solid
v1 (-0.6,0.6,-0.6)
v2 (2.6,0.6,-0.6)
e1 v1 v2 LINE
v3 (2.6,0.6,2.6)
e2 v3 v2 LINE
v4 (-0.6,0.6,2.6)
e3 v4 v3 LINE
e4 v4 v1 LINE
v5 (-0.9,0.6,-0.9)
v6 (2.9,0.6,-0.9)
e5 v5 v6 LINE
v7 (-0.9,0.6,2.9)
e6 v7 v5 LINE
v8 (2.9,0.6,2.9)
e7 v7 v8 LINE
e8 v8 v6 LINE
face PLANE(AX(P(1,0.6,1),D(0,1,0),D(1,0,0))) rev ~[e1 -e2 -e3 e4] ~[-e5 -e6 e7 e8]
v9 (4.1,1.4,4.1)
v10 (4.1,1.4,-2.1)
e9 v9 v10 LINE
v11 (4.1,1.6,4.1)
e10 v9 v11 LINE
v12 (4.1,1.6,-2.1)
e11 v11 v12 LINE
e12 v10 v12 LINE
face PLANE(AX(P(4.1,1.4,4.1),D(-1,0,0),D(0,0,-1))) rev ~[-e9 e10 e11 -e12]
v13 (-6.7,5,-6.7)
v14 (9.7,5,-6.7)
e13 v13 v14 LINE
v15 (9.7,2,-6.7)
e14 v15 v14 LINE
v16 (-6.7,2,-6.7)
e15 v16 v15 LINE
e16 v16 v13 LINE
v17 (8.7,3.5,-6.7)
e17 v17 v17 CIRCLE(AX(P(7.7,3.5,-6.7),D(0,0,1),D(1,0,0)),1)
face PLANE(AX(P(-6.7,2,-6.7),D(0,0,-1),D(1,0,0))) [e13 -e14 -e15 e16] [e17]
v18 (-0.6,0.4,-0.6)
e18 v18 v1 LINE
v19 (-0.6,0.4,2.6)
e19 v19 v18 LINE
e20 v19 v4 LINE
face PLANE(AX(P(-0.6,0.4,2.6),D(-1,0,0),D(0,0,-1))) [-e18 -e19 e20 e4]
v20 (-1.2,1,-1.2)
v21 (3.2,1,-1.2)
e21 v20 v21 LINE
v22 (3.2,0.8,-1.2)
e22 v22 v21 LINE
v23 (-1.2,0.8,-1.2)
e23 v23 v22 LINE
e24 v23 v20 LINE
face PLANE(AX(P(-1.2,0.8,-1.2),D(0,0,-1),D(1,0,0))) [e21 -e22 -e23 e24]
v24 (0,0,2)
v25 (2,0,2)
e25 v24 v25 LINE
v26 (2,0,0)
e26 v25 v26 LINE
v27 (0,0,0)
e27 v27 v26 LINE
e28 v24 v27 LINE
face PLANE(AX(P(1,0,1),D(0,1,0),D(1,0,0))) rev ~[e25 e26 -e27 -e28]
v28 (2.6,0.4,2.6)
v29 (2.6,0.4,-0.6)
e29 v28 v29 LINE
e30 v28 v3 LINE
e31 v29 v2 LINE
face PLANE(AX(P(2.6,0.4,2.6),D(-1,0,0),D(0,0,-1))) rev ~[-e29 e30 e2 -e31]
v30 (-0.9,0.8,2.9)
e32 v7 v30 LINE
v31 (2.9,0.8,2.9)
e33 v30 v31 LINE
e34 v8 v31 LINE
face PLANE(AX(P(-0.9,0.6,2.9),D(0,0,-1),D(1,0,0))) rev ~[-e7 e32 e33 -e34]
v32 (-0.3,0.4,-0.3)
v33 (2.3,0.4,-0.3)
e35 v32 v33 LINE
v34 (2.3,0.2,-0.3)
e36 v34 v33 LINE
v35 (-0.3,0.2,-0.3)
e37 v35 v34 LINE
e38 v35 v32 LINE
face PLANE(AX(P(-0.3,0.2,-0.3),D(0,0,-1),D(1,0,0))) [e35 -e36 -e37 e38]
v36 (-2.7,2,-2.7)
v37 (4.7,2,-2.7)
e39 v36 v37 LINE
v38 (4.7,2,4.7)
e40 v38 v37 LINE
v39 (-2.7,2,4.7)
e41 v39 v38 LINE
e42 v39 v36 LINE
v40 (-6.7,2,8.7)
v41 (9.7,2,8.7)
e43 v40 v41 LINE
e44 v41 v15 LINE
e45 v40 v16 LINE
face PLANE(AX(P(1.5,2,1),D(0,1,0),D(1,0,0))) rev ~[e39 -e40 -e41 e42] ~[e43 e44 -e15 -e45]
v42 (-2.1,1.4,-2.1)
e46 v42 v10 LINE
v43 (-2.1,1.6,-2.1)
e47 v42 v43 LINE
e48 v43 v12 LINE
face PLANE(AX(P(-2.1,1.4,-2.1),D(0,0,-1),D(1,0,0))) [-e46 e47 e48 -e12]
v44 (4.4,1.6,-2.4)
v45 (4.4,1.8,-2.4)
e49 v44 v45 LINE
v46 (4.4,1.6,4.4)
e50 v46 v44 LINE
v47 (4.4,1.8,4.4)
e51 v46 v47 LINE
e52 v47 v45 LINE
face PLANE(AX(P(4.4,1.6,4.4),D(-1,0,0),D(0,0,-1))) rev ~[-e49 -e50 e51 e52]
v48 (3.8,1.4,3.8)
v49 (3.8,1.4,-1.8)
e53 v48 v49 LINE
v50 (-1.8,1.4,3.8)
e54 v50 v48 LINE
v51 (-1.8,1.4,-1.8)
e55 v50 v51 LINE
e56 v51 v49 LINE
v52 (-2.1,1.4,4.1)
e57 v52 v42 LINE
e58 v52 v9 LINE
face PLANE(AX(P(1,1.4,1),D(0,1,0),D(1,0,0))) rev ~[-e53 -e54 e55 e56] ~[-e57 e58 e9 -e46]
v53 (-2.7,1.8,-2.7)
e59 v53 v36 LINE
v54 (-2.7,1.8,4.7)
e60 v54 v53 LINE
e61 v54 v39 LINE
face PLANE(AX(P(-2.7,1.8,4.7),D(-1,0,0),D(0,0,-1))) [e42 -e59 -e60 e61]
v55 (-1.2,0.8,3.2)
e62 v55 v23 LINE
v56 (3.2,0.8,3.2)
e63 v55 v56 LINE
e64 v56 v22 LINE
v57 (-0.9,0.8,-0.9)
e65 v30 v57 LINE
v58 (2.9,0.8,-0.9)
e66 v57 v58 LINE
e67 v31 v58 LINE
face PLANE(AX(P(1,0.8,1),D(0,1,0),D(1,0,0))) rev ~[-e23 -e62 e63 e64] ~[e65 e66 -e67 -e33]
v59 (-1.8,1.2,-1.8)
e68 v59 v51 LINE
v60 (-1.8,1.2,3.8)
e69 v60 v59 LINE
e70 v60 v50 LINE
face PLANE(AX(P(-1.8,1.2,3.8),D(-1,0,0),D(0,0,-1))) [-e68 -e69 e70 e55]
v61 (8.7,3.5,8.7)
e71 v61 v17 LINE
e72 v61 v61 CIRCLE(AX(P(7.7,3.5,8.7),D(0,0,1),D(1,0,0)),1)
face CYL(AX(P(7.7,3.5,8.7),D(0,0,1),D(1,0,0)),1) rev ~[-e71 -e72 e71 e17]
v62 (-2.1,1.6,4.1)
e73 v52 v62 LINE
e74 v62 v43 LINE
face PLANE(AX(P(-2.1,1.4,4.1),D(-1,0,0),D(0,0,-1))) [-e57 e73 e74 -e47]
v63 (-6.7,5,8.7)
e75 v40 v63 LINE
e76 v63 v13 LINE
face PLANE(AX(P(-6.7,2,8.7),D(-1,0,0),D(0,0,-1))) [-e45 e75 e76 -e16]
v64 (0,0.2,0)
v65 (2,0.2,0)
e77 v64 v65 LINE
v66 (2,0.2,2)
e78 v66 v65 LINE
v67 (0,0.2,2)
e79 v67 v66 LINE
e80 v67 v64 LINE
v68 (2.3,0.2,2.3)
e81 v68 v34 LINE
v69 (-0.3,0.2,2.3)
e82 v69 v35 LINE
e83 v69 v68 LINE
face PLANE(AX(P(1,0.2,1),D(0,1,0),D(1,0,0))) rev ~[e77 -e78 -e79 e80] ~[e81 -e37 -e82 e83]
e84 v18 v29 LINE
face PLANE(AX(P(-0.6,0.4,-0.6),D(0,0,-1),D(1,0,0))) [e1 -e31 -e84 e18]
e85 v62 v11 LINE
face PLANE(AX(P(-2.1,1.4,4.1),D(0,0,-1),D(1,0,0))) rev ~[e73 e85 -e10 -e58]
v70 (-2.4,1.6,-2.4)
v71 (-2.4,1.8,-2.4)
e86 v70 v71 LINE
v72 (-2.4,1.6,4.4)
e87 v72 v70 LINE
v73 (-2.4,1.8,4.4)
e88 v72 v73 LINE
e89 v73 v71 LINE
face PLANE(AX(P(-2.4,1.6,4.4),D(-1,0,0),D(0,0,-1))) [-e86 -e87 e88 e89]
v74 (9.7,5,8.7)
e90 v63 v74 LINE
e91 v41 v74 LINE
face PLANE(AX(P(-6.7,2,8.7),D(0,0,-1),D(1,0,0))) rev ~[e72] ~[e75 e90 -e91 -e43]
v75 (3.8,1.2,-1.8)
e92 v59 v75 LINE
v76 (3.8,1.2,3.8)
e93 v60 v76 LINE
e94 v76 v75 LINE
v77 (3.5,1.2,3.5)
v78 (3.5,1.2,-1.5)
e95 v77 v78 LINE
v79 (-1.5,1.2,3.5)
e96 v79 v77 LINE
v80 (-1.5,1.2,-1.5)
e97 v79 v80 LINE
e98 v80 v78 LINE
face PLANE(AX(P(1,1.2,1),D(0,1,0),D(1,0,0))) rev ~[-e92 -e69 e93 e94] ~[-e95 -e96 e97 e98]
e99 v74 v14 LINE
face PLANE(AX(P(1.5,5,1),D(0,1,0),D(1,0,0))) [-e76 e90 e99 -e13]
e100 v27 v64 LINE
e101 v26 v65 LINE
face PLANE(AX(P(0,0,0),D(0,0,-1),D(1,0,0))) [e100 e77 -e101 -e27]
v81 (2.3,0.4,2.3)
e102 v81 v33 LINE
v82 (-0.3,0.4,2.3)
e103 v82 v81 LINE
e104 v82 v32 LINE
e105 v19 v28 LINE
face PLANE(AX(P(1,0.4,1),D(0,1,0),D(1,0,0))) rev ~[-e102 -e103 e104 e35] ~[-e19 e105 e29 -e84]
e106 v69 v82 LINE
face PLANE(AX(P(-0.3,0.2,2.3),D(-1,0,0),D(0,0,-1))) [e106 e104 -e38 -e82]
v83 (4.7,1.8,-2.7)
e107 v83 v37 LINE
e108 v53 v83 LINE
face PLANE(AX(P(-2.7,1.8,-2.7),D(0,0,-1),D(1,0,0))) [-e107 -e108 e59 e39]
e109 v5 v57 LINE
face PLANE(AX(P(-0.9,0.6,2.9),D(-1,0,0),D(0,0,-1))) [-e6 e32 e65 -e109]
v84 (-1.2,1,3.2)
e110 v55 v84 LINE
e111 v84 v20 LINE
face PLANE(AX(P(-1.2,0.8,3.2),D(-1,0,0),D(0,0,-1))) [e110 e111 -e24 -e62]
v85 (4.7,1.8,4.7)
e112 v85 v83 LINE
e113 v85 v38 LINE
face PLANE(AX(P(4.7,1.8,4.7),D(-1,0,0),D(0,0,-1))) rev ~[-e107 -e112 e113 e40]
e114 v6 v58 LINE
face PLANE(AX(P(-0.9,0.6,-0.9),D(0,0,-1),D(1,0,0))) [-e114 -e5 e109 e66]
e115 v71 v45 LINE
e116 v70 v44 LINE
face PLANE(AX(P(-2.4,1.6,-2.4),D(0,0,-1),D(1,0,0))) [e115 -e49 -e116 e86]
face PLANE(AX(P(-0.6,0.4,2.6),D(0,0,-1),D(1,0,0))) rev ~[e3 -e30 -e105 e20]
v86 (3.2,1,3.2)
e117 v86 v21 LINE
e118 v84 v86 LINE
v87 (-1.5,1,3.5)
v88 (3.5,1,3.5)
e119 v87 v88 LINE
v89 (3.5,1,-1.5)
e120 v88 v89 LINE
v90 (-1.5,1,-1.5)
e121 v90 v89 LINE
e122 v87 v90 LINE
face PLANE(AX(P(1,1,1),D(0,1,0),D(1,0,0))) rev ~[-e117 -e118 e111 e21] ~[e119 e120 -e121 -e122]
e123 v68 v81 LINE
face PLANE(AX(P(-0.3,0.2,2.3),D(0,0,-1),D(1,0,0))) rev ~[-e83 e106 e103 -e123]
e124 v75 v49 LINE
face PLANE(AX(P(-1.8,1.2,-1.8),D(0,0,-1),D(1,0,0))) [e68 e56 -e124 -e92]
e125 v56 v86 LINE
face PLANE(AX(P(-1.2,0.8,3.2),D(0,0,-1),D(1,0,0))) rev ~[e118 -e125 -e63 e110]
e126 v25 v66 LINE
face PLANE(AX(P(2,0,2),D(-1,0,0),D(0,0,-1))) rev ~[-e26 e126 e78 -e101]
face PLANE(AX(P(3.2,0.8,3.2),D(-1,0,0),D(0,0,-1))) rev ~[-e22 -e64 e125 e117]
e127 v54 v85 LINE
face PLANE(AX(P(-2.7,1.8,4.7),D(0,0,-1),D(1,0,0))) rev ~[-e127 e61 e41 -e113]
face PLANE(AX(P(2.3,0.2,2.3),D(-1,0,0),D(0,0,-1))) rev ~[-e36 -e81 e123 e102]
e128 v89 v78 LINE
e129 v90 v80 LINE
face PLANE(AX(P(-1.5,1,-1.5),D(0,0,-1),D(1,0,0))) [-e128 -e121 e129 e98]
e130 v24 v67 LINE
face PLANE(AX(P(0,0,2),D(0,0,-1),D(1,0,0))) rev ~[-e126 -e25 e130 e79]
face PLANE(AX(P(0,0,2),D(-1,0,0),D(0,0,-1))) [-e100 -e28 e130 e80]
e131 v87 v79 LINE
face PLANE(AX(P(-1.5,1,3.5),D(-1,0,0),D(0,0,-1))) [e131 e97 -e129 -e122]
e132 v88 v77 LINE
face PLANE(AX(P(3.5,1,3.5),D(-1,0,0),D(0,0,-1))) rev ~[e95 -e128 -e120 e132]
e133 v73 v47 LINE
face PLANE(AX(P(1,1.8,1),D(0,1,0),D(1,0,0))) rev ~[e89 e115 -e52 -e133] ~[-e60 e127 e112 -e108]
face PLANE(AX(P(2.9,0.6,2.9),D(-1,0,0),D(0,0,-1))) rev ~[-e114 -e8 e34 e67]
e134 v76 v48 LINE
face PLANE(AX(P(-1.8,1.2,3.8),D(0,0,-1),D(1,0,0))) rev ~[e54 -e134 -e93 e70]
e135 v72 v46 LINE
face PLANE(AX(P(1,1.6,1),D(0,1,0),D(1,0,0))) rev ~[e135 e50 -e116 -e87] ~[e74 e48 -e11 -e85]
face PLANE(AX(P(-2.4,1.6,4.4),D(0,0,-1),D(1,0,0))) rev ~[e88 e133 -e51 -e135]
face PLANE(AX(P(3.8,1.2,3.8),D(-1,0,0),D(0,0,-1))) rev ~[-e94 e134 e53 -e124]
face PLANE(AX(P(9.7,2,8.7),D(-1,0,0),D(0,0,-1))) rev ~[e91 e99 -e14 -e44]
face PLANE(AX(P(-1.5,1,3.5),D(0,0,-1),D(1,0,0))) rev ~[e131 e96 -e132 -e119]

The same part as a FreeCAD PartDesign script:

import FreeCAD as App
import Part
import Sketcher
Q = App.Units.Quantity


def add_polygon(sketch, points):
    """Adds a closed chain of lines whose ends are joined by coincident constraints."""
    first, n = sketch.GeometryCount, len(points)
    for a, b in zip(points, points[1:] + points[:1]):
        sketch.addGeometry(Part.LineSegment(App.Vector(*a, 0), App.Vector(*b, 0)), False)
    for i in range(n):
        sketch.addConstraint(Sketcher.Constraint("Coincident", first + i, 2, first + (i + 1) % n, 1))

doc = App.newDocument("Part")
body = doc.addObject("PartDesign::Body", "Body")

# Sketch on XZ plane
sketch1 = body.newObject("Sketcher::SketchObject", "Sketch")
sketch1.AttachmentSupport = (doc.getObject("XZ_Plane"), [""])
sketch1.MapMode = "FlatFace"
add_polygon(sketch1, [(0, 0), (0, 2), (2, 2), (2, 0)])  # lines 0-3
sketch1.addConstraint([
    Sketcher.Constraint("Vertical", 0),
    Sketcher.Constraint("Horizontal", 1),
    Sketcher.Constraint("Vertical", 2),
    Sketcher.Constraint("Horizontal", 3),
    Sketcher.Constraint("Coincident", 3, 2, -1, 1),
    Sketcher.Constraint("Equal", 3, 0),
    Sketcher.Constraint("DistanceX", 1, 1, 1, 2, Q("2 mm")),
])
pad1 = body.newObject("PartDesign::Pad", "Pad")
pad1.Profile = sketch1
pad1.Length = 0.2
pad1.Reversed = True

# Sketch on XZ plane
sketch2 = body.newObject("Sketcher::SketchObject", "Sketch001")
sketch2.AttachmentSupport = (doc.getObject("XZ_Plane"), [""])
sketch2.MapMode = "FlatFace"
sketch2.AttachmentOffset = App.Placement(App.Vector(0, 0, -0.2), App.Rotation())
add_polygon(sketch2, [(-0.3, -0.3), (-0.3, 2.3), (2.3, 2.3), (2.3, -0.3)])  # lines 0-3
sketch2.addConstraint([
    Sketcher.Constraint("Vertical", 0),
    Sketcher.Constraint("Horizontal", 1),
    Sketcher.Constraint("Vertical", 2),
    Sketcher.Constraint("Horizontal", 3),
    Sketcher.Constraint("Equal", 3, 0),
    Sketcher.Constraint("DistanceX", 1, 1, 1, 2, Q("2.6 mm")),
    Sketcher.Constraint("DistanceX", 0, 2, -1, 1, Q("0.3 mm")),
    Sketcher.Constraint("DistanceY", -1, 1, 0, 2, Q("2.3 mm")),
])
pad2 = body.newObject("PartDesign::Pad", "Pad001")
pad2.Profile = sketch2
pad2.Length = 0.2
pad2.Reversed = True

# Sketch on XZ plane
sketch3 = body.newObject("Sketcher::SketchObject", "Sketch002")
sketch3.AttachmentSupport = (doc.getObject("XZ_Plane"), [""])
sketch3.MapMode = "FlatFace"
sketch3.AttachmentOffset = App.Placement(App.Vector(0, 0, -0.4), App.Rotation())
add_polygon(sketch3, [(-0.6, -0.6), (-0.6, 2.6), (2.6, 2.6), (2.6, -0.6)])  # lines 0-3
sketch3.addConstraint([
    Sketcher.Constraint("Vertical", 0),
    Sketcher.Constraint("Horizontal", 1),
    Sketcher.Constraint("Vertical", 2),
    Sketcher.Constraint("Horizontal", 3),
    Sketcher.Constraint("Equal", 3, 0),
    Sketcher.Constraint("DistanceX", 1, 1, 1, 2, Q("3.2 mm")),
    Sketcher.Constraint("DistanceX", 0, 2, -1, 1, Q("0.6 mm")),
    Sketcher.Constraint("DistanceY", -1, 1, 0, 2, Q("2.6 mm")),
])
pad3 = body.newObject("PartDesign::Pad", "Pad002")
pad3.Profile = sketch3
pad3.Length = 0.2
pad3.Reversed = True

# Sketch on XZ plane
sketch4 = body.newObject("Sketcher::SketchObject", "Sketch003")
sketch4.AttachmentSupport = (doc.getObject("XZ_Plane"), [""])
sketch4.MapMode = "FlatFace"
sketch4.AttachmentOffset = App.Placement(App.Vector(0, 0, -0.6), App.Rotation())
add_polygon(sketch4, [(-0.9, -0.9), (-0.9, 2.9), (2.9, 2.9), (2.9, -0.9)])  # lines 0-3
sketch4.addConstraint([
    Sketcher.Constraint("Vertical", 0),
    Sketcher.Constraint("Horizontal", 1),
    Sketcher.Constraint("Vertical", 2),
    Sketcher.Constraint("Horizontal", 3),
    Sketcher.Constraint("Equal", 3, 0),
    Sketcher.Constraint("DistanceX", 1, 1, 1, 2, Q("3.8 mm")),
    Sketcher.Constraint("DistanceX", 0, 2, -1, 1, Q("0.9 mm")),
    Sketcher.Constraint("DistanceY", -1, 1, 0, 2, Q("2.9 mm")),
])
pad4 = body.newObject("PartDesign::Pad", "Pad003")
pad4.Profile = sketch4
pad4.Length = 0.2
pad4.Reversed = True

# Sketch on XZ plane
sketch5 = body.newObject("Sketcher::SketchObject", "Sketch004")
sketch5.AttachmentSupport = (doc.getObject("XZ_Plane"), [""])
sketch5.MapMode = "FlatFace"
sketch5.AttachmentOffset = App.Placement(App.Vector(0, 0, -0.8), App.Rotation())
add_polygon(sketch5, [(-1.2, -1.2), (-1.2, 3.2), (3.2, 3.2), (3.2, -1.2)])  # lines 0-3
sketch5.addConstraint([
    Sketcher.Constraint("Vertical", 0),
    Sketcher.Constraint("Horizontal", 1),
    Sketcher.Constraint("Vertical", 2),
    Sketcher.Constraint("Horizontal", 3),
    Sketcher.Constraint("Equal", 3, 0),
    Sketcher.Constraint("DistanceX", 1, 1, 1, 2, Q("4.4 mm")),
    Sketcher.Constraint("DistanceX", 0, 2, -1, 1, Q("1.2 mm")),
    Sketcher.Constraint("DistanceY", -1, 1, 0, 2, Q("3.2 mm")),
])
pad5 = body.newObject("PartDesign::Pad", "Pad004")
pad5.Profile = sketch5
pad5.Length = 0.2
pad5.Reversed = True

# Sketch on XZ plane
sketch6 = body.newObject("Sketcher::SketchObject", "Sketch005")
sketch6.AttachmentSupport = (doc.getObject("XZ_Plane"), [""])
sketch6.MapMode = "FlatFace"
sketch6.AttachmentOffset = App.Placement(App.Vector(0, 0, -1), App.Rotation())
add_polygon(sketch6, [(-2, -2), (-2, 4), (4, 4), (4, -2)])  # lines 0-3
sketch6.addConstraint([
    Sketcher.Constraint("Vertical", 0),
    Sketcher.Constraint("Horizontal", 1),
    Sketcher.Constraint("Vertical", 2),
    Sketcher.Constraint("Horizontal", 3),
    Sketcher.Constraint("Equal", 3, 0),
    Sketcher.Constraint("DistanceX", 1, 1, 1, 2, Q("5 mm")),
    Sketcher.Constraint("DistanceX", 0, 2, -1, 1, Q("1.5 mm")),
    Sketcher.Constraint("DistanceY", -1, 1, 0, 2, Q("3.5 mm")),
])
pad6 = body.newObject("PartDesign::Pad", "Pad005")
pad6.Profile = sketch6
pad6.Length = 0.2
pad6.Reversed = True

# Sketch on XZ plane
sketch7 = body.newObject("Sketcher::SketchObject", "Sketch006")
sketch7.AttachmentSupport = (doc.getObject("XZ_Plane"), [""])
sketch7.MapMode = "FlatFace"
sketch7.AttachmentOffset = App.Placement(App.Vector(0, 0, -1.2), App.Rotation())
add_polygon(sketch7, [(-2, -2), (-2, 4), (4, 4), (4, -2)])  # lines 0-3
sketch7.addConstraint([
    Sketcher.Constraint("Vertical", 0),
    Sketcher.Constraint("Horizontal", 1),
    Sketcher.Constraint("Vertical", 2),
    Sketcher.Constraint("Horizontal", 3),
    Sketcher.Constraint("Equal", 3, 0),
    Sketcher.Constraint("DistanceX", 1, 1, 1, 2, Q("5.6 mm")),
    Sketcher.Constraint("DistanceX", 0, 2, -1, 1, Q("1.8 mm")),
    Sketcher.Constraint("DistanceY", -1, 1, 0, 2, Q("3.8 mm")),
])
pad7 = body.newObject("PartDesign::Pad", "Pad006")
pad7.Profile = sketch7
pad7.Length = 0.2
pad7.Reversed = True

# Sketch on XZ plane
sketch8 = body.newObject("Sketcher::SketchObject", "Sketch007")
sketch8.AttachmentSupport = (doc.getObject("XZ_Plane"), [""])
sketch8.MapMode = "FlatFace"
sketch8.AttachmentOffset = App.Placement(App.Vector(0, 0, -1.4), App.Rotation())
add_polygon(sketch8, [(-2, -2), (-2, 4), (4, 4), (4, -2)])  # lines 0-3
sketch8.addConstraint([
    Sketcher.Constraint("Vertical", 0),
    Sketcher.Constraint("Horizontal", 1),
    Sketcher.Constraint("Vertical", 2),
    Sketcher.Constraint("Horizontal", 3),
    Sketcher.Constraint("Equal", 3, 0),
    Sketcher.Constraint("DistanceX", 1, 1, 1, 2, Q("6.2 mm")),
    Sketcher.Constraint("DistanceX", 0, 2, -1, 1, Q("2.1 mm")),
    Sketcher.Constraint("DistanceY", -1, 1, 0, 2, Q("4.1 mm")),
])
pad8 = body.newObject("PartDesign::Pad", "Pad007")
pad8.Profile = sketch8
pad8.Length = 0.2
pad8.Reversed = True

# Sketch on XZ plane
sketch9 = body.newObject("Sketcher::SketchObject", "Sketch008")
sketch9.AttachmentSupport = (doc.getObject("XZ_Plane"), [""])
sketch9.MapMode = "FlatFace"
sketch9.AttachmentOffset = App.Placement(App.Vector(0, 0, -1.6), App.Rotation())
add_polygon(sketch9, [(-2, -2), (-2, 4), (4, 4), (4, -2)])  # lines 0-3
sketch9.addConstraint([
    Sketcher.Constraint("Vertical", 0),
    Sketcher.Constraint("Horizontal", 1),
    Sketcher.Constraint("Vertical", 2),
    Sketcher.Constraint("Horizontal", 3),
    Sketcher.Constraint("Equal", 3, 0),
    Sketcher.Constraint("DistanceX", 1, 1, 1, 2, Q("6.8 mm")),
    Sketcher.Constraint("DistanceX", 0, 2, -1, 1, Q("2.4 mm")),
    Sketcher.Constraint("DistanceY", -1, 1, 0, 2, Q("4.4 mm")),
])
pad9 = body.newObject("PartDesign::Pad", "Pad008")
pad9.Profile = sketch9
pad9.Length = 0.2
pad9.Reversed = True

# Sketch on XZ plane
sketch10 = body.newObject("Sketcher::SketchObject", "Sketch009")
sketch10.AttachmentSupport = (doc.getObject("XZ_Plane"), [""])
sketch10.MapMode = "FlatFace"
sketch10.AttachmentOffset = App.Placement(App.Vector(0, 0, -1.8), App.Rotation())
add_polygon(sketch10, [(-3, -3), (-3, 5), (5, 5), (5, -3)])  # lines 0-3
sketch10.addConstraint([
    Sketcher.Constraint("Vertical", 0),
    Sketcher.Constraint("Horizontal", 1),
    Sketcher.Constraint("Vertical", 2),
    Sketcher.Constraint("Horizontal", 3),
    Sketcher.Constraint("Equal", 3, 0),
    Sketcher.Constraint("DistanceX", 1, 1, 1, 2, Q("7.4 mm")),
    Sketcher.Constraint("DistanceX", 0, 2, -1, 1, Q("2.7 mm")),
    Sketcher.Constraint("DistanceY", -1, 1, 0, 2, Q("4.7 mm")),
])
pad10 = body.newObject("PartDesign::Pad", "Pad009")
pad10.Profile = sketch10
pad10.Length = 0.2
pad10.Reversed = True

# Sketch on XZ plane
sketch11 = body.newObject("Sketcher::SketchObject", "Sketch010")
sketch11.AttachmentSupport = (doc.getObject("XZ_Plane"), [""])
sketch11.MapMode = "FlatFace"
sketch11.AttachmentOffset = App.Placement(App.Vector(0, 0, -2), App.Rotation())
add_polygon(sketch11, [(-7, -7), (-7, 9), (10, 9), (10, -7)])  # lines 0-3
sketch11.addConstraint([
    Sketcher.Constraint("Vertical", 0),
    Sketcher.Constraint("Horizontal", 1),
    Sketcher.Constraint("Vertical", 2),
    Sketcher.Constraint("Horizontal", 3),
    Sketcher.Constraint("DistanceX", 1, 1, 1, 2, Q("16.4 mm")),
    Sketcher.Constraint("DistanceY", 0, 1, 0, 2, Q("15.4 mm")),
    Sketcher.Constraint("DistanceX", 0, 2, -1, 1, Q("6.7 mm")),
    Sketcher.Constraint("DistanceY", -1, 1, 0, 2, Q("8.7 mm")),
])
pad11 = body.newObject("PartDesign::Pad", "Pad010")
pad11.Profile = sketch11
pad11.Length = 3
pad11.Reversed = True

# Sketch on XY plane
sketch12 = body.newObject("Sketcher::SketchObject", "Sketch011")
sketch12.AttachmentSupport = (doc.getObject("XY_Plane"), [""])
sketch12.MapMode = "FlatFace"
sketch12.AttachmentOffset = App.Placement(App.Vector(0, 0, 8.7), App.Rotation())
sketch12.addGeometry(Part.Circle(App.Vector(7.7, 3.5, 0), App.Vector(0, 0, 1), 1), False)
sketch12.addConstraint([
    Sketcher.Constraint("Diameter", 0, Q("2 mm")),
    Sketcher.Constraint("DistanceX", -1, 1, 0, 3, Q("7.7 mm")),
    Sketcher.Constraint("DistanceY", -1, 1, 0, 3, Q("3.5 mm")),
])
pocket1 = body.newObject("PartDesign::Pocket", "Pocket")
pocket1.Profile = sketch12
pocket1.Type = "ThroughAll"

doc.recompute()
